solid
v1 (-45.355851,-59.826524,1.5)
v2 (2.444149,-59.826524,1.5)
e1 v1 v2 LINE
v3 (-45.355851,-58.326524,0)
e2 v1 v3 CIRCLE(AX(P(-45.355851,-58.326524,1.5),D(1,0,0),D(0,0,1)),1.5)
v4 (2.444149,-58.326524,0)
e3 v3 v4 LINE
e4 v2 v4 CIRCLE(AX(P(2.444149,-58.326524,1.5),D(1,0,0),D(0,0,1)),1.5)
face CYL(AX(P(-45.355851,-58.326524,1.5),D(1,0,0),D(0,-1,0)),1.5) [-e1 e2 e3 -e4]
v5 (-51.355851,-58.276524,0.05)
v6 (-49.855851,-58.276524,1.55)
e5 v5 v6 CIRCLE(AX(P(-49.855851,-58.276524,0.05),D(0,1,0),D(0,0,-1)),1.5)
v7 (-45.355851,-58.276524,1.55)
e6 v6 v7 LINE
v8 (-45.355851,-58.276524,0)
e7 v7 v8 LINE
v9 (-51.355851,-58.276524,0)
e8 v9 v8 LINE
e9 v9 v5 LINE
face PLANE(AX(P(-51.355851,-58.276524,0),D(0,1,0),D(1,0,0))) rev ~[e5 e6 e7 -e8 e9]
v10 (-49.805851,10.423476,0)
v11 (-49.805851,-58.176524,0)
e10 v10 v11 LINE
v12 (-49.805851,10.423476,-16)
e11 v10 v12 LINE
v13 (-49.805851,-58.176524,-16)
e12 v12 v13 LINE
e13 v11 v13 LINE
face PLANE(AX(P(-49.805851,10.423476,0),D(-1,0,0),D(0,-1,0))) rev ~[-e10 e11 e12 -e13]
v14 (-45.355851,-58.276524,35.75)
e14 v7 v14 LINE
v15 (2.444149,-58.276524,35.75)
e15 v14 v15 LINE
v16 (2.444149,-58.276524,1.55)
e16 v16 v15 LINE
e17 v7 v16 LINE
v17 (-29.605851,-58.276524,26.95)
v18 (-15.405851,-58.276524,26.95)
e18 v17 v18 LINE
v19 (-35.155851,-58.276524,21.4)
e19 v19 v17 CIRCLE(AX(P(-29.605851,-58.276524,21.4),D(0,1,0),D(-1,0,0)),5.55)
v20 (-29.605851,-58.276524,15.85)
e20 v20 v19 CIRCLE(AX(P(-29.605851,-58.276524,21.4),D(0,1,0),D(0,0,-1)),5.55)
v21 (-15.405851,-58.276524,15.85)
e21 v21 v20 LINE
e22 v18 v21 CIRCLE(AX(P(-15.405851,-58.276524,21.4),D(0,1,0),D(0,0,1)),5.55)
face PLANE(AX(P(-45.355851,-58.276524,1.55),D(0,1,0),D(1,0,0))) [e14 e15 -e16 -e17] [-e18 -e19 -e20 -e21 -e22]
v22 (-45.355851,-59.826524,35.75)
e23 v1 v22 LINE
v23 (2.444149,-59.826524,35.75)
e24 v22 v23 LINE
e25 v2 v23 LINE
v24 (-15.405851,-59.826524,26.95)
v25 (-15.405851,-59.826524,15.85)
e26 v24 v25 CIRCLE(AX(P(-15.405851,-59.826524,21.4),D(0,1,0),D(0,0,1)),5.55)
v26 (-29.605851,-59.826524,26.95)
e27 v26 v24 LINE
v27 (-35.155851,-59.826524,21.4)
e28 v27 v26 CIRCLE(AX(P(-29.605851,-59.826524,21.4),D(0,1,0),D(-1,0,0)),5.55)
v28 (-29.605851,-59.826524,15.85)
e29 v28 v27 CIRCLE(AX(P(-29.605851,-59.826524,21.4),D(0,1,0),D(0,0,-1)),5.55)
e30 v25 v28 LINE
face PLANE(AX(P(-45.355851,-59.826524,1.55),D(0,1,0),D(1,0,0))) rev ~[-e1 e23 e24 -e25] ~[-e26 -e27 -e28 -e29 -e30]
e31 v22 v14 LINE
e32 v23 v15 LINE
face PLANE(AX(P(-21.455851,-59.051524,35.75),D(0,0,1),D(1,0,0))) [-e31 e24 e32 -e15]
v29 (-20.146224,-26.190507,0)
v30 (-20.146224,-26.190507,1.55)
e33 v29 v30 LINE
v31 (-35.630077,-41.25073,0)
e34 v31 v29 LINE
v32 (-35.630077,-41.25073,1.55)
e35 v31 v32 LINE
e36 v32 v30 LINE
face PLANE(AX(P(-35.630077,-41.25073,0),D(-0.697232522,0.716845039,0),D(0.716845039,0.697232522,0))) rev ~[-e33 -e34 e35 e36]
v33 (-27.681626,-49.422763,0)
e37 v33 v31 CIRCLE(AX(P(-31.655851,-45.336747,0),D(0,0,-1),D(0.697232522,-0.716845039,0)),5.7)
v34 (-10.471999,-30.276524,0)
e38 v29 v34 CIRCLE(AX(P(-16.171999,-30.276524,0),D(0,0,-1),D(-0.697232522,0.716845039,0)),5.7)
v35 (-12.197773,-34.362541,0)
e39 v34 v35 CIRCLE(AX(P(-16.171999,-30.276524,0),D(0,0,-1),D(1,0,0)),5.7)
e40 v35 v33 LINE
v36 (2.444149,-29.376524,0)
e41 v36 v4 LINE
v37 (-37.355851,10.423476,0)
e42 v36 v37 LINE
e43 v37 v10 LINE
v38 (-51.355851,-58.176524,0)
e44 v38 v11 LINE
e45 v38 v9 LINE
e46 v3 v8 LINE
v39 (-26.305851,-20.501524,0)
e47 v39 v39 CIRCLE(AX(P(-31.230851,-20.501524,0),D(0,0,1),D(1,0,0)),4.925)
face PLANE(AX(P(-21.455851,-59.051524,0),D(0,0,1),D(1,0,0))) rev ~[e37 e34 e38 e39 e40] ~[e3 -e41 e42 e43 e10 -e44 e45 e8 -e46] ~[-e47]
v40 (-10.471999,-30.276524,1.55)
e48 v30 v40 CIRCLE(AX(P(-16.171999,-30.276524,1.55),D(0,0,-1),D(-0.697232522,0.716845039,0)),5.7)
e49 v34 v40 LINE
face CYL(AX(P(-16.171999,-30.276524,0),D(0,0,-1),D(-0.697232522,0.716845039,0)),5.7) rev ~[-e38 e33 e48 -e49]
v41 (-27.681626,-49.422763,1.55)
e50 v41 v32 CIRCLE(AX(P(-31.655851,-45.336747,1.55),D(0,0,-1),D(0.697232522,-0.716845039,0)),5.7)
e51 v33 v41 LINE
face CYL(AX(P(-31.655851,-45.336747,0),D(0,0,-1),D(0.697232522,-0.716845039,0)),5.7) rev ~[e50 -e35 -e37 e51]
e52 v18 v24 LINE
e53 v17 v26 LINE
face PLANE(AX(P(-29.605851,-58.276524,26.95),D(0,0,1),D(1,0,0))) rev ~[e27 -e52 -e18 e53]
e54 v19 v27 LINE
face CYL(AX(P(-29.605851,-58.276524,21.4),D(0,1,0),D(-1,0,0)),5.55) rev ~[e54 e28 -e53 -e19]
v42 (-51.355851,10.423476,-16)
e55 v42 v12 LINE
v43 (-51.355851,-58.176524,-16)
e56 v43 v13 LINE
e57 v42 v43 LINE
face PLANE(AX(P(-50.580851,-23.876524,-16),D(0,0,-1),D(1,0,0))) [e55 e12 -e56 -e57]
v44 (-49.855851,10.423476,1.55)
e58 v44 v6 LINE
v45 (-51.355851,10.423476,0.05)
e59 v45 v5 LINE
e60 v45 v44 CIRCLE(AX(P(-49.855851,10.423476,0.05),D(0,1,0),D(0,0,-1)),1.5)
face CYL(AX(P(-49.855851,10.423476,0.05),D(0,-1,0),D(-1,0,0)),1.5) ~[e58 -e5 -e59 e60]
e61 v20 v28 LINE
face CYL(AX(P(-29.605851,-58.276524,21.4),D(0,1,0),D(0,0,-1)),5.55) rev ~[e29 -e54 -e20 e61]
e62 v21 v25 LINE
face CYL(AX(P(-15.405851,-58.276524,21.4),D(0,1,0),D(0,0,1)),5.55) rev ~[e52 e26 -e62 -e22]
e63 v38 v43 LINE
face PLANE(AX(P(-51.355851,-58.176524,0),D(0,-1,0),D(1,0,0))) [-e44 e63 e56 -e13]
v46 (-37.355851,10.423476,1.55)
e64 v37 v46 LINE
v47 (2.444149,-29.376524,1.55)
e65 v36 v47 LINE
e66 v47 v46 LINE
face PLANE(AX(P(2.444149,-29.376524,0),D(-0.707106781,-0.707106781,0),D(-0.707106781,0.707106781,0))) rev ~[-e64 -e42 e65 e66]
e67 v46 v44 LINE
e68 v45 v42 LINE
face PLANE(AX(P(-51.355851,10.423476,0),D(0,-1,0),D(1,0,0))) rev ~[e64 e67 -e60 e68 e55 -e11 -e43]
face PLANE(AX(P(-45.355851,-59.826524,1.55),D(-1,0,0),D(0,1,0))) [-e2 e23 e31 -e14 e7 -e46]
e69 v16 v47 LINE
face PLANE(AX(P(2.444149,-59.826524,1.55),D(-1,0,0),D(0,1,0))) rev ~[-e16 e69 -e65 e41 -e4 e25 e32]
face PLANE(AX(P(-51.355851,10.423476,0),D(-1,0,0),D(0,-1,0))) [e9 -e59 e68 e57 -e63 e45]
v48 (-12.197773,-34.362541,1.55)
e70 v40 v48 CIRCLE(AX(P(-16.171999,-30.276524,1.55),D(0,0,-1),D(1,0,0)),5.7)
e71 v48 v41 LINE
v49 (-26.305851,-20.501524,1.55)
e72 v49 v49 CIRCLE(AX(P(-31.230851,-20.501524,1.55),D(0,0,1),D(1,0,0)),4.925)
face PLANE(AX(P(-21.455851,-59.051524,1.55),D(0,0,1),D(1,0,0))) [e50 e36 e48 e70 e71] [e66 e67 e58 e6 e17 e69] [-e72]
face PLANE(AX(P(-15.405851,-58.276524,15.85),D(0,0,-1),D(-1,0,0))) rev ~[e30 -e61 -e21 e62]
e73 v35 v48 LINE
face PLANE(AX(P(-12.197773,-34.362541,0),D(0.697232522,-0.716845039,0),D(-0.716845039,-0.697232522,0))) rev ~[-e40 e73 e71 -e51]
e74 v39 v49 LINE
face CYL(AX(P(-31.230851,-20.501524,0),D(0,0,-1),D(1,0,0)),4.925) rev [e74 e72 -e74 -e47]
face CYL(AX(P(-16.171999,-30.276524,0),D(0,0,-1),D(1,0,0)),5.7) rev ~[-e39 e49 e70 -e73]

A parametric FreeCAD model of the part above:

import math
import FreeCAD as App
import Part
import Sketcher
from FreeCAD import Vector
Q = App.Units.Quantity


def edges_at(feature, points):
    """Names of the edges that pass closest to the given points."""
    edges = feature.Shape.Edges
    near = lambda p: min(range(len(edges)), key=lambda i: edges[i].distToShape(Part.Vertex(*p))[0])
    return sorted({f"Edge{near(p) + 1}" for p in points})

doc = App.newDocument("Part")
body = doc.addObject("PartDesign::Body", "Body")

sketch1 = body.newObject("Sketcher::SketchObject", "Sketch")
sketch1.AttachmentSupport = (doc.getObject("XY_Plane"), [""])
sketch1.MapMode = "FlatFace"
sketch1.addGeometry([
    Part.LineSegment(Vector(-51.355851, 10.423476, 0), Vector(-51.355851, -58.276524, 0)),
    Part.LineSegment(Vector(-51.355851, -58.276524, 0), Vector(2.444149, -58.276524, 0)),
    Part.LineSegment(Vector(2.444149, -58.276524, 0), Vector(2.444149, -29.376524, 0)),
    Part.LineSegment(Vector(2.444149, -29.376524, 0), Vector(-37.355851, 10.423476, 0)),
    Part.LineSegment(Vector(-37.355851, 10.423476, 0), Vector(-51.355851, 10.423476, 0)),
    Part.LineSegment(Vector(-12.197773, -34.362541, 0), Vector(-27.681626, -49.422763, 0)),
    Part.ArcOfCircle(Part.Circle(Vector(-31.655851, -45.336747, 0), Vector(0, 0, 1), 5.7), math.radians(134.205388), math.radians(314.205388)),
    Part.LineSegment(Vector(-35.630077, -41.25073, 0), Vector(-20.146224, -26.190507, 0)),
    Part.ArcOfCircle(Part.Circle(Vector(-16.171999, -30.276524, 0), Vector(0, 0, 1), 5.7), math.radians(0), math.radians(134.205388)),
    Part.ArcOfCircle(Part.Circle(Vector(-16.171999, -30.276524, 0), Vector(0, 0, 1), 5.7), math.radians(-45.794612), math.radians(0)),
    Part.Circle(Vector(-31.230851, -20.501524, 0), Vector(0, 0, 1), 4.925),
], False)
sketch1.addConstraint([
    Sketcher.Constraint("Coincident", 0, 2, 1, 1),
    Sketcher.Constraint("Coincident", 1, 2, 2, 1),
    Sketcher.Constraint("Coincident", 2, 2, 3, 1),
    Sketcher.Constraint("Coincident", 3, 2, 4, 1),
    Sketcher.Constraint("Coincident", 4, 2, 0, 1),
    Sketcher.Constraint("Tangent", 5, 2, 6, 2),
    Sketcher.Constraint("Tangent", 6, 1, 7, 1),
    Sketcher.Constraint("Tangent", 7, 2, 8, 2),
    Sketcher.Constraint("Tangent", 8, 1, 9, 2),
    Sketcher.Constraint("Tangent", 9, 1, 5, 1),
    Sketcher.Constraint("Vertical", 0),
    Sketcher.Constraint("Horizontal", 1),
    Sketcher.Constraint("Vertical", 2),
    Sketcher.Constraint("Horizontal", 4),
    Sketcher.Constraint("Equal", 6, 8),
    Sketcher.Constraint("Equal", 8, 9),
    Sketcher.Constraint("Horizontal", 9, 3, 8, 1),
    Sketcher.Constraint("Radius", 6, Q("5.7 mm")),
    Sketcher.Constraint("Diameter", 10, Q("9.85 mm")),
    Sketcher.Constraint("DistanceX", 4, 2, 4, 1, Q("14 mm")),
    Sketcher.Constraint("Angle", 3, Q("135 deg")),
    Sketcher.Constraint("DistanceX", 1, 1, 1, 2, Q("53.8 mm")),
    Sketcher.Constraint("DistanceY", 0, 2, 0, 1, Q("68.7 mm")),
    Sketcher.Constraint("DistanceY", 0, 2, 8, 3, Q("28 mm")),
    Sketcher.Constraint("Distance", 5, Q("21.6 mm")),
    Sketcher.Constraint("DistanceX", 0, 2, 6, 3, Q("19.7 mm")),
    Sketcher.Constraint("DistanceX", 8, 3, -1, 1, Q("16.171999 mm")),
    Sketcher.Constraint("DistanceY", 8, 3, 10, 3, Q("9.775 mm")),
    Sketcher.Constraint("DistanceX", 6, 3, 10, 3, Q("0.425 mm")),
    Sketcher.Constraint("DistanceX", 6, 3, -1, 1, Q("31.655851 mm")),
    Sketcher.Constraint("DistanceY", 6, 1, -1, 1, Q("41.25073 mm")),
])
pad1 = body.newObject("PartDesign::Pad", "Pad")
pad1.Profile = sketch1
pad1.Length = 1.55

sketch2 = body.newObject("Sketcher::SketchObject", "Sketch001")
sketch2.AttachmentSupport = (doc.getObject("XY_Plane"), [""])
sketch2.MapMode = "FlatFace"
sketch2.addGeometry([
    Part.LineSegment(Vector(-51.355851, -58.176524, 0), Vector(-51.355851, 10.423476, 0)),
    Part.LineSegment(Vector(-51.355851, 10.423476, 0), Vector(-49.805851, 10.423476, 0)),
    Part.LineSegment(Vector(-49.805851, 10.423476, 0), Vector(-49.805851, -58.176524, 0)),
    Part.LineSegment(Vector(-49.805851, -58.176524, 0), Vector(-51.355851, -58.176524, 0)),
], False)
sketch2.addConstraint([
    Sketcher.Constraint("Coincident", 0, 2, 1, 1),
    Sketcher.Constraint("Coincident", 1, 2, 2, 1),
    Sketcher.Constraint("Coincident", 2, 2, 3, 1),
    Sketcher.Constraint("Coincident", 3, 2, 0, 1),
    Sketcher.Constraint("Vertical", 0),
    Sketcher.Constraint("Horizontal", 1),
    Sketcher.Constraint("Vertical", 2),
    Sketcher.Constraint("Horizontal", 3),
    Sketcher.Constraint("DistanceY", 0, 1, 0, 2, Q("68.6 mm")),
    Sketcher.Constraint("DistanceX", 1, 1, 1, 2, Q("1.55 mm")),
    Sketcher.Constraint("DistanceX", 0, 2, -1, 1, Q("51.355851 mm")),
    Sketcher.Constraint("DistanceY", -1, 1, 0, 2, Q("10.423476 mm")),
])
pad2 = body.newObject("PartDesign::Pad", "Pad001")
pad2.Profile = sketch2
pad2.Length = 16
pad2.Reversed = True

sketch3 = body.newObject("Sketcher::SketchObject", "Sketch002")
sketch3.AttachmentSupport = (doc.getObject("XY_Plane"), [""])
sketch3.MapMode = "FlatFace"
sketch3.AttachmentOffset = App.Placement(Vector(0, 0, 1.55), App.Rotation())
sketch3.addGeometry([
    Part.LineSegment(Vector(-45.355851, -58.276524, 0), Vector(-45.355851, -59.826524, 0)),
    Part.LineSegment(Vector(-45.355851, -59.826524, 0), Vector(2.444149, -59.826524, 0)),
    Part.LineSegment(Vector(2.444149, -59.826524, 0), Vector(2.444149, -58.276524, 0)),
    Part.LineSegment(Vector(2.444149, -58.276524, 0), Vector(-45.355851, -58.276524, 0)),
], False)
sketch3.addConstraint([
    Sketcher.Constraint("Coincident", 0, 2, 1, 1),
    Sketcher.Constraint("Coincident", 1, 2, 2, 1),
    Sketcher.Constraint("Coincident", 2, 2, 3, 1),
    Sketcher.Constraint("Coincident", 3, 2, 0, 1),
    Sketcher.Constraint("Vertical", 0),
    Sketcher.Constraint("Horizontal", 1),
    Sketcher.Constraint("Vertical", 2),
    Sketcher.Constraint("Horizontal", 3),
    Sketcher.Constraint("DistanceX", 1, 1, 1, 2, Q("47.8 mm")),
    Sketcher.Constraint("DistanceY", 0, 2, 0, 1, Q("1.55 mm")),
    Sketcher.Constraint("DistanceX", 0, 2, -1, 1, Q("45.355851 mm")),
    Sketcher.Constraint("DistanceY", 0, 2, -1, 1, Q("59.826524 mm")),
])
pad3 = body.newObject("PartDesign::Pad", "Pad002")
pad3.Profile = sketch3
pad3.Length = 1.55
pad3.Reversed = True

sketch4 = body.newObject("Sketcher::SketchObject", "Sketch003")
sketch4.AttachmentSupport = (doc.getObject("XY_Plane"), [""])
sketch4.MapMode = "FlatFace"
sketch4.AttachmentOffset = App.Placement(Vector(0, 0, 1.55), App.Rotation())
sketch4.addGeometry([
    Part.LineSegment(Vector(-45.355851, -58.276524, 0), Vector(-45.355851, -59.826524, 0)),
    Part.LineSegment(Vector(-45.355851, -59.826524, 0), Vector(2.444149, -59.826524, 0)),
    Part.LineSegment(Vector(2.444149, -59.826524, 0), Vector(2.444149, -58.276524, 0)),
    Part.LineSegment(Vector(2.444149, -58.276524, 0), Vector(-45.355851, -58.276524, 0)),
], False)
sketch4.addConstraint([
    Sketcher.Constraint("Coincident", 0, 2, 1, 1),
    Sketcher.Constraint("Coincident", 1, 2, 2, 1),
    Sketcher.Constraint("Coincident", 2, 2, 3, 1),
    Sketcher.Constraint("Coincident", 3, 2, 0, 1),
    Sketcher.Constraint("Vertical", 0),
    Sketcher.Constraint("Horizontal", 1),
    Sketcher.Constraint("Vertical", 2),
    Sketcher.Constraint("Horizontal", 3),
    Sketcher.Constraint("DistanceX", 1, 1, 1, 2, Q("47.8 mm")),
    Sketcher.Constraint("DistanceY", 0, 2, 0, 1, Q("1.55 mm")),
    Sketcher.Constraint("DistanceX", 0, 2, -1, 1, Q("45.355851 mm")),
    Sketcher.Constraint("DistanceY", 0, 2, -1, 1, Q("59.826524 mm")),
])
pad4 = body.newObject("PartDesign::Pad", "Pad003")
pad4.Profile = sketch4
pad4.Length = 34.2
doc.recompute()

fillet = body.newObject("PartDesign::Fillet", "Fillet")
fillet.Base = (pad4, edges_at(pad4, [(-21.456, -59.827, 0), (-51.356, -23.927, 1.55)]))
fillet.Radius = 1.5

sketch5 = body.newObject("Sketcher::SketchObject", "Sketch004")
sketch5.AttachmentSupport = (doc.getObject("XZ_Plane"), [""])
sketch5.MapMode = "FlatFace"
sketch5.AttachmentOffset = App.Placement(Vector(0, 0, 58.276524), App.Rotation())
sketch5.addGeometry([
    Part.ArcOfCircle(Part.Circle(Vector(-15.405851, 21.4, 0), Vector(0, 0, 1), 5.55), math.radians(-90), math.radians(90)),
    Part.LineSegment(Vector(-15.405851, 15.85, 0), Vector(-29.605851, 15.85, 0)),
    Part.ArcOfCircle(Part.Circle(Vector(-29.605851, 21.4, 0), Vector(0, 0, 1), 5.55), math.radians(180), math.radians(270)),
    Part.ArcOfCircle(Part.Circle(Vector(-29.605851, 21.4, 0), Vector(0, 0, 1), 5.55), math.radians(90), math.radians(180)),
    Part.LineSegment(Vector(-29.605851, 26.95, 0), Vector(-15.405851, 26.95, 0)),
], False)
sketch5.addConstraint([
    Sketcher.Constraint("Tangent", 0, 1, 1, 1),
    Sketcher.Constraint("Tangent", 1, 2, 2, 2),
    Sketcher.Constraint("Tangent", 2, 1, 3, 2),
    Sketcher.Constraint("Tangent", 3, 1, 4, 1),
    Sketcher.Constraint("Tangent", 4, 2, 0, 2),
    Sketcher.Constraint("Horizontal", 1),
    Sketcher.Constraint("Horizontal", 4),
    Sketcher.Constraint("Equal", 0, 2),
    Sketcher.Constraint("Horizontal", 3, 3, 2, 1),
    Sketcher.Constraint("Radius", 0, Q("5.55 mm")),
    Sketcher.Constraint("DistanceX", 1, 2, 1, 1, Q("14.2 mm")),
    Sketcher.Constraint("DistanceY", -1, 1, 0, 3, Q("21.4 mm")),
    Sketcher.Constraint("DistanceX", 0, 3, -1, 1, Q("15.405851 mm")),
])
pocket1 = body.newObject("PartDesign::Pocket", "Pocket")
pocket1.Profile = sketch5
pocket1.Type = "ThroughAll"
pocket1.Reversed = True

doc.recompute()
